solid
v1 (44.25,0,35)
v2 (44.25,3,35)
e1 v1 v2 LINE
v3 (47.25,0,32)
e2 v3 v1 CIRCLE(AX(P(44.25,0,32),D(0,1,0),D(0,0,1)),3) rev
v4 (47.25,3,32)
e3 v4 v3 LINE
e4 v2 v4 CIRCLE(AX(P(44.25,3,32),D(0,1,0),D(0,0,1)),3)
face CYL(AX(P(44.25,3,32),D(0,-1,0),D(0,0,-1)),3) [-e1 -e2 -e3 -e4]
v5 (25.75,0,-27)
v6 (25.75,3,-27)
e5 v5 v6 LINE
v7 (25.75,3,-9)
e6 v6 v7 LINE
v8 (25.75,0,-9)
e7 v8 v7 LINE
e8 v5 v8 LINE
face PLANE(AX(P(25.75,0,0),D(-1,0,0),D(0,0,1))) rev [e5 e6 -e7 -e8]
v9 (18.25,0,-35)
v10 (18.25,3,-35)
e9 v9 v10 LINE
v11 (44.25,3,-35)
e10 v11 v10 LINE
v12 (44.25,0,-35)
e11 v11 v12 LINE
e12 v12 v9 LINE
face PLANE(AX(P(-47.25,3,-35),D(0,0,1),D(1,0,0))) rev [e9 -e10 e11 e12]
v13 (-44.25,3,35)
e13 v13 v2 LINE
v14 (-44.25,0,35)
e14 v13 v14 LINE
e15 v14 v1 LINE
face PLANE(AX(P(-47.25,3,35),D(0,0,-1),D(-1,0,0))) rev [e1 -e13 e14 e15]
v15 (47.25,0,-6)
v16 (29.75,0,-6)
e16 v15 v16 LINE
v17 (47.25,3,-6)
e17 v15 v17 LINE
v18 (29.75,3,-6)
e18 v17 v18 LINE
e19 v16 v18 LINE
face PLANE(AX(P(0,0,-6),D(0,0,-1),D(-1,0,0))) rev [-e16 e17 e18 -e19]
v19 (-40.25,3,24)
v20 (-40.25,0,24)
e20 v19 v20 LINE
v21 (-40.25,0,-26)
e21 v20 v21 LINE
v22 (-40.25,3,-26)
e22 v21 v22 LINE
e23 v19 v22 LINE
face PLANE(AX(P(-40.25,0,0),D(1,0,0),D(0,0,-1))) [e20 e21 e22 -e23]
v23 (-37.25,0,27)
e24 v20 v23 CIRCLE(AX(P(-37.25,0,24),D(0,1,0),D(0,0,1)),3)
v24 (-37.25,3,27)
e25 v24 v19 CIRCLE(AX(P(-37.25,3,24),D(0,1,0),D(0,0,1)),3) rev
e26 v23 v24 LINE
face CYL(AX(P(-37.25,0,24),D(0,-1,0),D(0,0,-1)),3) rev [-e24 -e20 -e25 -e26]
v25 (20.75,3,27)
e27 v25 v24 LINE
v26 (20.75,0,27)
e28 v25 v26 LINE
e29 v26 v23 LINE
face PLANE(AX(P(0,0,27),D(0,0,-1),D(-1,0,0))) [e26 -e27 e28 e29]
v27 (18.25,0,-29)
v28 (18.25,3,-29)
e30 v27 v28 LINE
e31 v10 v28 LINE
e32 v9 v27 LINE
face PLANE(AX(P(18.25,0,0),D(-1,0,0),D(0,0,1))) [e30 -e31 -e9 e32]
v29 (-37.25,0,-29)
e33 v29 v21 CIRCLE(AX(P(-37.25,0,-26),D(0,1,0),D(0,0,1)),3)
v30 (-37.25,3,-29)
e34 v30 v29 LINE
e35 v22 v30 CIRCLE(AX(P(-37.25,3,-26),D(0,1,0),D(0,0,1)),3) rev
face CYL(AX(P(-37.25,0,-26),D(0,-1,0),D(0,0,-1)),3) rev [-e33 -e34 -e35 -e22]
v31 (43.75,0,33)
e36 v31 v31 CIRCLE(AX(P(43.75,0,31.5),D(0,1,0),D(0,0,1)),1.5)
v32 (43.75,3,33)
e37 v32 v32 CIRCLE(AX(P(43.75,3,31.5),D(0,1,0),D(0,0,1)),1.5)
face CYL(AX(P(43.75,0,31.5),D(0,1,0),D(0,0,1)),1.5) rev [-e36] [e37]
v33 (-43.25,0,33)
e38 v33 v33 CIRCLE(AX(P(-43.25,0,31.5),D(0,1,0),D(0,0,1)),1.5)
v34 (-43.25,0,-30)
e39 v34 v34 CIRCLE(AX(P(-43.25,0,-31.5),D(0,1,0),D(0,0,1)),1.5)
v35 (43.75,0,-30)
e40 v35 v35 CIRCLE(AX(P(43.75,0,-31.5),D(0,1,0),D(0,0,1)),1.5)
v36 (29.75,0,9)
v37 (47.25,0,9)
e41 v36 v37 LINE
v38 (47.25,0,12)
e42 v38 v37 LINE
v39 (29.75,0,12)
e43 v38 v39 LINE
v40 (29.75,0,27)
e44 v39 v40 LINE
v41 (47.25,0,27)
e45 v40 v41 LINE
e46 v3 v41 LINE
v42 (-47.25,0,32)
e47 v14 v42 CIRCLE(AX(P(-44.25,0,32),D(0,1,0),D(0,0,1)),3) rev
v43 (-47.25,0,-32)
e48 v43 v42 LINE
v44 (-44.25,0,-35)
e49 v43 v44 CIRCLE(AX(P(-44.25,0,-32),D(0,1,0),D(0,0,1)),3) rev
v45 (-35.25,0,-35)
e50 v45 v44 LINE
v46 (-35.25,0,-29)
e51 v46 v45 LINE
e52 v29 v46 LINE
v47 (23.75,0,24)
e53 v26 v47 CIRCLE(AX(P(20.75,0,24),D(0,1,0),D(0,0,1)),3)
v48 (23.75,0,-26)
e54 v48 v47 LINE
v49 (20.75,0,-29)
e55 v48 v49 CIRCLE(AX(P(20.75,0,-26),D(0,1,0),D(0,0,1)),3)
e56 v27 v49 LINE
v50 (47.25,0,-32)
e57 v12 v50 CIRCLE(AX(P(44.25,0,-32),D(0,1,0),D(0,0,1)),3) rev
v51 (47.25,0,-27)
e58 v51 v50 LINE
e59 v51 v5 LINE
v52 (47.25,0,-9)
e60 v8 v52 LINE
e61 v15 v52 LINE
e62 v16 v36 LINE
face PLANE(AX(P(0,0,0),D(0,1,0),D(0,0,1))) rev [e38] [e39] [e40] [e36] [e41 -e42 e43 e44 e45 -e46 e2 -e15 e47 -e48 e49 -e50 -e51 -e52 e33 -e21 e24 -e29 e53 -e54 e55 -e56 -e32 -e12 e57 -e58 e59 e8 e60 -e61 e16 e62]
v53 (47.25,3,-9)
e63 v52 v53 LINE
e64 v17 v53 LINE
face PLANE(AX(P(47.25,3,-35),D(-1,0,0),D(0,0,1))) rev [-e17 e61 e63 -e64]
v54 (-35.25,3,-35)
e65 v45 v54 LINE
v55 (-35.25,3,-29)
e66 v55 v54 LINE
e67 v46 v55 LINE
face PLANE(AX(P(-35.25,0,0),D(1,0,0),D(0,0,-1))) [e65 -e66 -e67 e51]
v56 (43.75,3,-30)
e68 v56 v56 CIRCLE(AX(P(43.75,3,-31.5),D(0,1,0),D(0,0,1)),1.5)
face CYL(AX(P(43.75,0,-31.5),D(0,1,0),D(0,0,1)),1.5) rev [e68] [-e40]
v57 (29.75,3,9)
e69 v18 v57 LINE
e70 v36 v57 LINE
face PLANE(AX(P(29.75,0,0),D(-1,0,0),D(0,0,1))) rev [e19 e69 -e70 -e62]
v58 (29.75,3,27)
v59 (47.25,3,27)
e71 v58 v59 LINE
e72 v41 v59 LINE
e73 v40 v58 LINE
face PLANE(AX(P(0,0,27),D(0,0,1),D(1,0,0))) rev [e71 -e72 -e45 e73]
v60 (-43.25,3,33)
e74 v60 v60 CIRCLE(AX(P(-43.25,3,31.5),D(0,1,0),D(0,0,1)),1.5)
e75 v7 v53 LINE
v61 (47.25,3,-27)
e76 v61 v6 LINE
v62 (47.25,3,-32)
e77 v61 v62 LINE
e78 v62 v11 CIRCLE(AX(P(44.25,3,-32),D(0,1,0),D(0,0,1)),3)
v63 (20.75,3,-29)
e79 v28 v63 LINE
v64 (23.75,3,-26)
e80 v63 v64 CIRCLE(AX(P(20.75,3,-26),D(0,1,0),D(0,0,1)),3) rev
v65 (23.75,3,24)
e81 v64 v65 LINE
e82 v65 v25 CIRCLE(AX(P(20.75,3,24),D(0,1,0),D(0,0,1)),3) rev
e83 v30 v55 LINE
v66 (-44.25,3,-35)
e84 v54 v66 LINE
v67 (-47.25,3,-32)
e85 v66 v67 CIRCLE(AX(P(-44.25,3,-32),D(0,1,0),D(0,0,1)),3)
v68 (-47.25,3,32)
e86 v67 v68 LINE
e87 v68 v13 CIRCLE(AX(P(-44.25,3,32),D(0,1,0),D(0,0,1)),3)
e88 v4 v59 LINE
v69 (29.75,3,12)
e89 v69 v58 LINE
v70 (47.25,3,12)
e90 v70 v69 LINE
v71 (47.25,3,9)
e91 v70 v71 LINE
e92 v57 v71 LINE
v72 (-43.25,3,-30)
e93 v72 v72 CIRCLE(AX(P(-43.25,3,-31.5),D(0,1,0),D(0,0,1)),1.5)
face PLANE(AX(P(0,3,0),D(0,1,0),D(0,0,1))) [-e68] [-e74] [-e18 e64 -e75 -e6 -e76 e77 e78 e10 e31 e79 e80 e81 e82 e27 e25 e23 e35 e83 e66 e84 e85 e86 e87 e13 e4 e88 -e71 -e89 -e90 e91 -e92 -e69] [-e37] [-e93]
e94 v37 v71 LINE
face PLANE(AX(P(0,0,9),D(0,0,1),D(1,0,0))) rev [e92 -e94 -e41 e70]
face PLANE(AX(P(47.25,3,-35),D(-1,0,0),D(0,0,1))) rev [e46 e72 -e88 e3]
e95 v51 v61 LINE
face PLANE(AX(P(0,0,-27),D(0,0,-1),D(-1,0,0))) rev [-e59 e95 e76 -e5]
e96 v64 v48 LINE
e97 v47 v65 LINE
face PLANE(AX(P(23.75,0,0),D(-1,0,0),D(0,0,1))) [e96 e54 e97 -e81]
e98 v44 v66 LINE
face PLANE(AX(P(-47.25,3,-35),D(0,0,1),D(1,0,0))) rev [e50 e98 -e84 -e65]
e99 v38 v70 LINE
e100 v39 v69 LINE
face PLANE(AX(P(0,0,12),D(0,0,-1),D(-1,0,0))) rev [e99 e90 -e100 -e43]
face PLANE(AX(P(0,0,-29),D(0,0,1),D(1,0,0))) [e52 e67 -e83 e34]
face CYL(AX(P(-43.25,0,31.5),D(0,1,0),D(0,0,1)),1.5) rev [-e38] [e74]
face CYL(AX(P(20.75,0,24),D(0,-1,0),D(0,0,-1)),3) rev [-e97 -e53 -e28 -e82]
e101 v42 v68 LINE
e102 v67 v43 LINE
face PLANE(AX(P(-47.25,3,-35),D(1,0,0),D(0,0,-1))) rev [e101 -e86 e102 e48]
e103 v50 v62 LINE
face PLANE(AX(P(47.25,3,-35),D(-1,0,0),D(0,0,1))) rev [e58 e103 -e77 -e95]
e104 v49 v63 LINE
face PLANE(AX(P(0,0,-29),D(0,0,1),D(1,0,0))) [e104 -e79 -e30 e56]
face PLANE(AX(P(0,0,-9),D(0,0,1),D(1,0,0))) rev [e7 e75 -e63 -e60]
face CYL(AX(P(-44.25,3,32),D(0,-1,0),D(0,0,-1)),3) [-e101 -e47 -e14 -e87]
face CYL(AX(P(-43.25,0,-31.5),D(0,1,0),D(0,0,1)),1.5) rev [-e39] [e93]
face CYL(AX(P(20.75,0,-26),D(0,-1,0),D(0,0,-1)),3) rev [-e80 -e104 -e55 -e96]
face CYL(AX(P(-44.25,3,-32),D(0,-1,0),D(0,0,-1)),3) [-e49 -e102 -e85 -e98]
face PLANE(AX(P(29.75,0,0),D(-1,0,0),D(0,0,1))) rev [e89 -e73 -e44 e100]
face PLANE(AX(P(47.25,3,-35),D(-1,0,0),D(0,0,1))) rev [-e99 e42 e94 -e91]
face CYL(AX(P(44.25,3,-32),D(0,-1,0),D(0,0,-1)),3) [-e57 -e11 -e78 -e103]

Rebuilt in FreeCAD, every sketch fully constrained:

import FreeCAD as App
import Part
import Sketcher
from FreeCAD import Vector
Q = App.Units.Quantity


def edges_at(feature, points):
    """Names of the edges that pass closest to the given points."""
    edges = feature.Shape.Edges
    near = lambda p: min(range(len(edges)), key=lambda i: edges[i].distToShape(Part.Vertex(*p))[0])
    return sorted({f"Edge{near(p) + 1}" for p in points})

doc = App.newDocument("Part")
params = doc.addObject("Spreadsheet::Sheet", "Params")
for row, (alias, value) in enumerate([
    ("sketch1_height", "70 mm"),
    ("sketch1_width", "94.5 mm"),
    ("pad1_length", "3 mm"),
    ("sketch2_diameter", "3 mm"),
    ("fillet_radius", "3 mm"),
    ("sketch3_width", "64 mm"),
    ("sketch3_width2", "5 mm"),
    ("sketch3_height", "56 mm"),
    ("sketch3_height2", "6 mm"),
    ("sketch3_height3", "18 mm"),
    ("fillet2_radius", "3 mm"),
], start=1):
    params.set(f"A{row}", alias)
    params.set(f"B{row}", "=" + value)
    params.setAlias(f"B{row}", alias)

body = doc.addObject("PartDesign::Body", "Body")

sketch1 = doc.addObject("Sketcher::SketchObject", "Sketch")
body.addObject(sketch1)
sketch1.AttachmentSupport = (doc.XZ_Plane, [""])
sketch1.MapMode = "FlatFace"
sketch1.addGeometry([
    Part.LineSegment(Vector(-47, -35, 0), Vector(-47, 35, 0)),
    Part.LineSegment(Vector(-47, 35, 0), Vector(47, 35, 0)),
    Part.LineSegment(Vector(47, 35, 0), Vector(47, -35, 0)),
    Part.LineSegment(Vector(47, -35, 0), Vector(-47, -35, 0)),
], False)
sketch1.addConstraint([
    Sketcher.Constraint("Coincident", 0, 2, 1, 1),
    Sketcher.Constraint("Coincident", 1, 2, 2, 1),
    Sketcher.Constraint("Coincident", 2, 2, 3, 1),
    Sketcher.Constraint("Coincident", 3, 2, 0, 1),
    Sketcher.Constraint("Vertical", 0),
    Sketcher.Constraint("Horizontal", 1),
    Sketcher.Constraint("Vertical", 2),
    Sketcher.Constraint("Horizontal", 3),
    Sketcher.Constraint("Symmetric", 0, 2, 2, 2, -1, 1),
    Sketcher.Constraint("DistanceY", 0, 1, 0, 2, Q("70 mm")),
    Sketcher.Constraint("DistanceX", 1, 1, 1, 2, Q("94.5 mm")),
])
sketch1.setExpression("Constraints[9]", "Params.sketch1_height")
sketch1.setExpression("Constraints[10]", "Params.sketch1_width")
pad1 = doc.addObject("PartDesign::Pad", "Pad")
body.addObject(pad1)
pad1.Profile = sketch1
pad1.setExpression("Length", "Params.pad1_length")
pad1.Reversed = True

sketch2 = doc.addObject("Sketcher::SketchObject", "Sketch001")
body.addObject(sketch2)
sketch2.AttachmentSupport = (doc.XZ_Plane, [""])
sketch2.MapMode = "FlatFace"
sketch2.AttachmentOffset = App.Placement(Vector(0, 0, -3), App.Rotation())
sketch2.addGeometry([
    Part.Circle(Vector(43.8, -31.5, 0), Vector(0, 0, 1), 1.5),
    Part.Circle(Vector(-43.2, -31.5, 0), Vector(0, 0, 1), 1.5),
    Part.Circle(Vector(-43.2, 31.5, 0), Vector(0, 0, 1), 1.5),
    Part.Circle(Vector(43.8, 31.5, 0), Vector(0, 0, 1), 1.5),
], False)
sketch2.addConstraint([
    Sketcher.Constraint("Equal", 0, 1),
    Sketcher.Constraint("Equal", 1, 2),
    Sketcher.Constraint("Equal", 2, 3),
    Sketcher.Constraint("Symmetric", 1, 3, 2, 3, -1),
    Sketcher.Constraint("Symmetric", 0, 3, 3, 3, -1),
    Sketcher.Constraint("Horizontal", 0, 3, 1, 3),
    Sketcher.Constraint("Diameter", 0, Q("3 mm")),
    Sketcher.Constraint("DistanceX", 1, 3, 0, 3, Q("87 mm")),
    Sketcher.Constraint("DistanceY", 1, 3, 2, 3, Q("63 mm")),
    Sketcher.Constraint("DistanceX", -1, 1, 0, 3, Q("43.75 mm")),
])
sketch2.setExpression("Constraints[6]", "Params.sketch2_diameter")
pocket1 = doc.addObject("PartDesign::Pocket", "Pocket")
body.addObject(pocket1)
pocket1.Profile = sketch2
pocket1.Type = "ThroughAll"
pocket1.Reversed = True
doc.recompute()

fillet = doc.addObject("PartDesign::Fillet", "Fillet")
body.addObject(fillet)
fillet.Base = (pocket1, edges_at(pocket1, [
    (47.25, 1.5, 35),
    (-47.25, 1.5, 35),
    (-47.25, 1.5, -35),
    (47.25, 1.5, -35),
]))
fillet.setExpression("Radius", "Params.fillet_radius")

sketch3 = doc.addObject("Sketcher::SketchObject", "Sketch002")
body.addObject(sketch3)
sketch3.AttachmentSupport = (doc.XZ_Plane, [""])
sketch3.MapMode = "FlatFace"
sketch3.AttachmentOffset = App.Placement(Vector(0, 0, -3), App.Rotation())
sketch3.addGeometry([
    Part.LineSegment(Vector(-40, -29, 0), Vector(-40, 27, 0)),
    Part.LineSegment(Vector(-40, 27, 0), Vector(24, 27, 0)),
    Part.LineSegment(Vector(24, 27, 0), Vector(24, -29, 0)),
    Part.LineSegment(Vector(24, -29, 0), Vector(18, -29, 0)),
    Part.LineSegment(Vector(18, -29, 0), Vector(18, -35, 0)),
    Part.LineSegment(Vector(18, -35, 0), Vector(-35, -35, 0)),
    Part.LineSegment(Vector(-35, -35, 0), Vector(-35, -29, 0)),
    Part.LineSegment(Vector(-35, -29, 0), Vector(-40, -29, 0)),
    Part.LineSegment(Vector(26, -27, 0), Vector(26, -9, 0)),
    Part.LineSegment(Vector(26, -9, 0), Vector(47, -9, 0)),
    Part.LineSegment(Vector(47, -9, 0), Vector(47, -27, 0)),
    Part.LineSegment(Vector(47, -27, 0), Vector(26, -27, 0)),
    Part.LineSegment(Vector(30, -6, 0), Vector(30, 9, 0)),
    Part.LineSegment(Vector(30, 9, 0), Vector(47, 9, 0)),
    Part.LineSegment(Vector(47, 9, 0), Vector(47, -6, 0)),
    Part.LineSegment(Vector(47, -6, 0), Vector(30, -6, 0)),
    Part.LineSegment(Vector(30, 12, 0), Vector(30, 27, 0)),
    Part.LineSegment(Vector(30, 27, 0), Vector(47, 27, 0)),
    Part.LineSegment(Vector(47, 27, 0), Vector(47, 12, 0)),
    Part.LineSegment(Vector(47, 12, 0), Vector(30, 12, 0)),
], False)
sketch3.addConstraint([
    Sketcher.Constraint("Coincident", 0, 2, 1, 1),
    Sketcher.Constraint("Coincident", 1, 2, 2, 1),
    Sketcher.Constraint("Coincident", 2, 2, 3, 1),
    Sketcher.Constraint("Coincident", 3, 2, 4, 1),
    Sketcher.Constraint("Coincident", 4, 2, 5, 1),
    Sketcher.Constraint("Coincident", 5, 2, 6, 1),
    Sketcher.Constraint("Coincident", 6, 2, 7, 1),
    Sketcher.Constraint("Coincident", 7, 2, 0, 1),
    Sketcher.Constraint("Coincident", 8, 2, 9, 1),
    Sketcher.Constraint("Coincident", 9, 2, 10, 1),
    Sketcher.Constraint("Coincident", 10, 2, 11, 1),
    Sketcher.Constraint("Coincident", 11, 2, 8, 1),
    Sketcher.Constraint("Coincident", 12, 2, 13, 1),
    Sketcher.Constraint("Coincident", 13, 2, 14, 1),
    Sketcher.Constraint("Coincident", 14, 2, 15, 1),
    Sketcher.Constraint("Coincident", 15, 2, 12, 1),
    Sketcher.Constraint("Coincident", 16, 2, 17, 1),
    Sketcher.Constraint("Coincident", 17, 2, 18, 1),
    Sketcher.Constraint("Coincident", 18, 2, 19, 1),
    Sketcher.Constraint("Coincident", 19, 2, 16, 1),
    Sketcher.Constraint("Vertical", 0),
    Sketcher.Constraint("Horizontal", 1),
    Sketcher.Constraint("Vertical", 2),
    Sketcher.Constraint("Horizontal", 3),
    Sketcher.Constraint("Vertical", 4),
    Sketcher.Constraint("Horizontal", 5),
    Sketcher.Constraint("Vertical", 6),
    Sketcher.Constraint("Horizontal", 7),
    Sketcher.Constraint("Vertical", 8),
    Sketcher.Constraint("Horizontal", 9),
    Sketcher.Constraint("Vertical", 10),
    Sketcher.Constraint("Horizontal", 11),
    Sketcher.Constraint("Vertical", 12),
    Sketcher.Constraint("Horizontal", 13),
    Sketcher.Constraint("Vertical", 14),
    Sketcher.Constraint("Horizontal", 15),
    Sketcher.Constraint("Vertical", 16),
    Sketcher.Constraint("Horizontal", 17),
    Sketcher.Constraint("Vertical", 18),
    Sketcher.Constraint("Horizontal", 19),
    Sketcher.Constraint("Symmetric", 9, 2, 13, 2, -1),
    Sketcher.Constraint("Symmetric", 10, 2, 17, 2, -1),
    Sketcher.Constraint("Horizontal", 3, 2, 6, 2),
    Sketcher.Constraint("Horizontal", 1, 2, 16, 2),
    Sketcher.Constraint("Vertical", 15, 2, 16, 2),
    Sketcher.Constraint("Equal", 14, 16),
    Sketcher.Constraint("DistanceX", 1, 1, 1, 2, Q("64 mm")),
    Sketcher.Constraint("DistanceX", 7, 2, 7, 1, Q("5 mm")),
    Sketcher.Constraint("DistanceY", 0, 1, 0, 2, Q("56 mm")),
    Sketcher.Constraint("DistanceY", 4, 2, 4, 1, Q("6 mm")),
    Sketcher.Constraint("DistanceY", 8, 1, 8, 2, Q("18 mm")),
    Sketcher.Constraint("DistanceY", 12, 1, 12, 2, Q("15 mm")),
    Sketcher.Constraint("DistanceX", 3, 2, 3, 1, Q("5.5 mm")),
    Sketcher.Constraint("DistanceX", 9, 1, 9, 2, Q("21.5 mm")),
    Sketcher.Constraint("DistanceX", 13, 1, 13, 2, Q("17.5 mm")),
    Sketcher.Constraint("DistanceY", -1, 1, 0, 2, Q("27 mm")),
    Sketcher.Constraint("DistanceX", 2, 2, 8, 2, Q("2 mm")),
    Sketcher.Constraint("DistanceX", 0, 2, -1, 1, Q("40.25 mm")),
])
sketch3.setExpression("Constraints[46]", "Params.sketch3_width")
sketch3.setExpression("Constraints[47]", "Params.sketch3_width2")
sketch3.setExpression("Constraints[48]", "Params.sketch3_height")
sketch3.setExpression("Constraints[49]", "Params.sketch3_height2")
sketch3.setExpression("Constraints[50]", "Params.sketch3_height3")
pocket2 = doc.addObject("PartDesign::Pocket", "Pocket001")
body.addObject(pocket2)
pocket2.Profile = sketch3
pocket2.Type = "ThroughAll"
pocket2.Reversed = True
doc.recompute()

fillet2 = doc.addObject("PartDesign::Fillet", "Fillet001")
body.addObject(fillet2)
fillet2.Base = (pocket2, edges_at(pocket2, [
    (-40.25, 1.5, 27),
    (-40.25, 1.5, -29),
    (23.75, 1.5, -29),
    (23.75, 1.5, 27),
]))
fillet2.setExpression("Radius", "Params.fillet2_radius")

doc.recompute()
